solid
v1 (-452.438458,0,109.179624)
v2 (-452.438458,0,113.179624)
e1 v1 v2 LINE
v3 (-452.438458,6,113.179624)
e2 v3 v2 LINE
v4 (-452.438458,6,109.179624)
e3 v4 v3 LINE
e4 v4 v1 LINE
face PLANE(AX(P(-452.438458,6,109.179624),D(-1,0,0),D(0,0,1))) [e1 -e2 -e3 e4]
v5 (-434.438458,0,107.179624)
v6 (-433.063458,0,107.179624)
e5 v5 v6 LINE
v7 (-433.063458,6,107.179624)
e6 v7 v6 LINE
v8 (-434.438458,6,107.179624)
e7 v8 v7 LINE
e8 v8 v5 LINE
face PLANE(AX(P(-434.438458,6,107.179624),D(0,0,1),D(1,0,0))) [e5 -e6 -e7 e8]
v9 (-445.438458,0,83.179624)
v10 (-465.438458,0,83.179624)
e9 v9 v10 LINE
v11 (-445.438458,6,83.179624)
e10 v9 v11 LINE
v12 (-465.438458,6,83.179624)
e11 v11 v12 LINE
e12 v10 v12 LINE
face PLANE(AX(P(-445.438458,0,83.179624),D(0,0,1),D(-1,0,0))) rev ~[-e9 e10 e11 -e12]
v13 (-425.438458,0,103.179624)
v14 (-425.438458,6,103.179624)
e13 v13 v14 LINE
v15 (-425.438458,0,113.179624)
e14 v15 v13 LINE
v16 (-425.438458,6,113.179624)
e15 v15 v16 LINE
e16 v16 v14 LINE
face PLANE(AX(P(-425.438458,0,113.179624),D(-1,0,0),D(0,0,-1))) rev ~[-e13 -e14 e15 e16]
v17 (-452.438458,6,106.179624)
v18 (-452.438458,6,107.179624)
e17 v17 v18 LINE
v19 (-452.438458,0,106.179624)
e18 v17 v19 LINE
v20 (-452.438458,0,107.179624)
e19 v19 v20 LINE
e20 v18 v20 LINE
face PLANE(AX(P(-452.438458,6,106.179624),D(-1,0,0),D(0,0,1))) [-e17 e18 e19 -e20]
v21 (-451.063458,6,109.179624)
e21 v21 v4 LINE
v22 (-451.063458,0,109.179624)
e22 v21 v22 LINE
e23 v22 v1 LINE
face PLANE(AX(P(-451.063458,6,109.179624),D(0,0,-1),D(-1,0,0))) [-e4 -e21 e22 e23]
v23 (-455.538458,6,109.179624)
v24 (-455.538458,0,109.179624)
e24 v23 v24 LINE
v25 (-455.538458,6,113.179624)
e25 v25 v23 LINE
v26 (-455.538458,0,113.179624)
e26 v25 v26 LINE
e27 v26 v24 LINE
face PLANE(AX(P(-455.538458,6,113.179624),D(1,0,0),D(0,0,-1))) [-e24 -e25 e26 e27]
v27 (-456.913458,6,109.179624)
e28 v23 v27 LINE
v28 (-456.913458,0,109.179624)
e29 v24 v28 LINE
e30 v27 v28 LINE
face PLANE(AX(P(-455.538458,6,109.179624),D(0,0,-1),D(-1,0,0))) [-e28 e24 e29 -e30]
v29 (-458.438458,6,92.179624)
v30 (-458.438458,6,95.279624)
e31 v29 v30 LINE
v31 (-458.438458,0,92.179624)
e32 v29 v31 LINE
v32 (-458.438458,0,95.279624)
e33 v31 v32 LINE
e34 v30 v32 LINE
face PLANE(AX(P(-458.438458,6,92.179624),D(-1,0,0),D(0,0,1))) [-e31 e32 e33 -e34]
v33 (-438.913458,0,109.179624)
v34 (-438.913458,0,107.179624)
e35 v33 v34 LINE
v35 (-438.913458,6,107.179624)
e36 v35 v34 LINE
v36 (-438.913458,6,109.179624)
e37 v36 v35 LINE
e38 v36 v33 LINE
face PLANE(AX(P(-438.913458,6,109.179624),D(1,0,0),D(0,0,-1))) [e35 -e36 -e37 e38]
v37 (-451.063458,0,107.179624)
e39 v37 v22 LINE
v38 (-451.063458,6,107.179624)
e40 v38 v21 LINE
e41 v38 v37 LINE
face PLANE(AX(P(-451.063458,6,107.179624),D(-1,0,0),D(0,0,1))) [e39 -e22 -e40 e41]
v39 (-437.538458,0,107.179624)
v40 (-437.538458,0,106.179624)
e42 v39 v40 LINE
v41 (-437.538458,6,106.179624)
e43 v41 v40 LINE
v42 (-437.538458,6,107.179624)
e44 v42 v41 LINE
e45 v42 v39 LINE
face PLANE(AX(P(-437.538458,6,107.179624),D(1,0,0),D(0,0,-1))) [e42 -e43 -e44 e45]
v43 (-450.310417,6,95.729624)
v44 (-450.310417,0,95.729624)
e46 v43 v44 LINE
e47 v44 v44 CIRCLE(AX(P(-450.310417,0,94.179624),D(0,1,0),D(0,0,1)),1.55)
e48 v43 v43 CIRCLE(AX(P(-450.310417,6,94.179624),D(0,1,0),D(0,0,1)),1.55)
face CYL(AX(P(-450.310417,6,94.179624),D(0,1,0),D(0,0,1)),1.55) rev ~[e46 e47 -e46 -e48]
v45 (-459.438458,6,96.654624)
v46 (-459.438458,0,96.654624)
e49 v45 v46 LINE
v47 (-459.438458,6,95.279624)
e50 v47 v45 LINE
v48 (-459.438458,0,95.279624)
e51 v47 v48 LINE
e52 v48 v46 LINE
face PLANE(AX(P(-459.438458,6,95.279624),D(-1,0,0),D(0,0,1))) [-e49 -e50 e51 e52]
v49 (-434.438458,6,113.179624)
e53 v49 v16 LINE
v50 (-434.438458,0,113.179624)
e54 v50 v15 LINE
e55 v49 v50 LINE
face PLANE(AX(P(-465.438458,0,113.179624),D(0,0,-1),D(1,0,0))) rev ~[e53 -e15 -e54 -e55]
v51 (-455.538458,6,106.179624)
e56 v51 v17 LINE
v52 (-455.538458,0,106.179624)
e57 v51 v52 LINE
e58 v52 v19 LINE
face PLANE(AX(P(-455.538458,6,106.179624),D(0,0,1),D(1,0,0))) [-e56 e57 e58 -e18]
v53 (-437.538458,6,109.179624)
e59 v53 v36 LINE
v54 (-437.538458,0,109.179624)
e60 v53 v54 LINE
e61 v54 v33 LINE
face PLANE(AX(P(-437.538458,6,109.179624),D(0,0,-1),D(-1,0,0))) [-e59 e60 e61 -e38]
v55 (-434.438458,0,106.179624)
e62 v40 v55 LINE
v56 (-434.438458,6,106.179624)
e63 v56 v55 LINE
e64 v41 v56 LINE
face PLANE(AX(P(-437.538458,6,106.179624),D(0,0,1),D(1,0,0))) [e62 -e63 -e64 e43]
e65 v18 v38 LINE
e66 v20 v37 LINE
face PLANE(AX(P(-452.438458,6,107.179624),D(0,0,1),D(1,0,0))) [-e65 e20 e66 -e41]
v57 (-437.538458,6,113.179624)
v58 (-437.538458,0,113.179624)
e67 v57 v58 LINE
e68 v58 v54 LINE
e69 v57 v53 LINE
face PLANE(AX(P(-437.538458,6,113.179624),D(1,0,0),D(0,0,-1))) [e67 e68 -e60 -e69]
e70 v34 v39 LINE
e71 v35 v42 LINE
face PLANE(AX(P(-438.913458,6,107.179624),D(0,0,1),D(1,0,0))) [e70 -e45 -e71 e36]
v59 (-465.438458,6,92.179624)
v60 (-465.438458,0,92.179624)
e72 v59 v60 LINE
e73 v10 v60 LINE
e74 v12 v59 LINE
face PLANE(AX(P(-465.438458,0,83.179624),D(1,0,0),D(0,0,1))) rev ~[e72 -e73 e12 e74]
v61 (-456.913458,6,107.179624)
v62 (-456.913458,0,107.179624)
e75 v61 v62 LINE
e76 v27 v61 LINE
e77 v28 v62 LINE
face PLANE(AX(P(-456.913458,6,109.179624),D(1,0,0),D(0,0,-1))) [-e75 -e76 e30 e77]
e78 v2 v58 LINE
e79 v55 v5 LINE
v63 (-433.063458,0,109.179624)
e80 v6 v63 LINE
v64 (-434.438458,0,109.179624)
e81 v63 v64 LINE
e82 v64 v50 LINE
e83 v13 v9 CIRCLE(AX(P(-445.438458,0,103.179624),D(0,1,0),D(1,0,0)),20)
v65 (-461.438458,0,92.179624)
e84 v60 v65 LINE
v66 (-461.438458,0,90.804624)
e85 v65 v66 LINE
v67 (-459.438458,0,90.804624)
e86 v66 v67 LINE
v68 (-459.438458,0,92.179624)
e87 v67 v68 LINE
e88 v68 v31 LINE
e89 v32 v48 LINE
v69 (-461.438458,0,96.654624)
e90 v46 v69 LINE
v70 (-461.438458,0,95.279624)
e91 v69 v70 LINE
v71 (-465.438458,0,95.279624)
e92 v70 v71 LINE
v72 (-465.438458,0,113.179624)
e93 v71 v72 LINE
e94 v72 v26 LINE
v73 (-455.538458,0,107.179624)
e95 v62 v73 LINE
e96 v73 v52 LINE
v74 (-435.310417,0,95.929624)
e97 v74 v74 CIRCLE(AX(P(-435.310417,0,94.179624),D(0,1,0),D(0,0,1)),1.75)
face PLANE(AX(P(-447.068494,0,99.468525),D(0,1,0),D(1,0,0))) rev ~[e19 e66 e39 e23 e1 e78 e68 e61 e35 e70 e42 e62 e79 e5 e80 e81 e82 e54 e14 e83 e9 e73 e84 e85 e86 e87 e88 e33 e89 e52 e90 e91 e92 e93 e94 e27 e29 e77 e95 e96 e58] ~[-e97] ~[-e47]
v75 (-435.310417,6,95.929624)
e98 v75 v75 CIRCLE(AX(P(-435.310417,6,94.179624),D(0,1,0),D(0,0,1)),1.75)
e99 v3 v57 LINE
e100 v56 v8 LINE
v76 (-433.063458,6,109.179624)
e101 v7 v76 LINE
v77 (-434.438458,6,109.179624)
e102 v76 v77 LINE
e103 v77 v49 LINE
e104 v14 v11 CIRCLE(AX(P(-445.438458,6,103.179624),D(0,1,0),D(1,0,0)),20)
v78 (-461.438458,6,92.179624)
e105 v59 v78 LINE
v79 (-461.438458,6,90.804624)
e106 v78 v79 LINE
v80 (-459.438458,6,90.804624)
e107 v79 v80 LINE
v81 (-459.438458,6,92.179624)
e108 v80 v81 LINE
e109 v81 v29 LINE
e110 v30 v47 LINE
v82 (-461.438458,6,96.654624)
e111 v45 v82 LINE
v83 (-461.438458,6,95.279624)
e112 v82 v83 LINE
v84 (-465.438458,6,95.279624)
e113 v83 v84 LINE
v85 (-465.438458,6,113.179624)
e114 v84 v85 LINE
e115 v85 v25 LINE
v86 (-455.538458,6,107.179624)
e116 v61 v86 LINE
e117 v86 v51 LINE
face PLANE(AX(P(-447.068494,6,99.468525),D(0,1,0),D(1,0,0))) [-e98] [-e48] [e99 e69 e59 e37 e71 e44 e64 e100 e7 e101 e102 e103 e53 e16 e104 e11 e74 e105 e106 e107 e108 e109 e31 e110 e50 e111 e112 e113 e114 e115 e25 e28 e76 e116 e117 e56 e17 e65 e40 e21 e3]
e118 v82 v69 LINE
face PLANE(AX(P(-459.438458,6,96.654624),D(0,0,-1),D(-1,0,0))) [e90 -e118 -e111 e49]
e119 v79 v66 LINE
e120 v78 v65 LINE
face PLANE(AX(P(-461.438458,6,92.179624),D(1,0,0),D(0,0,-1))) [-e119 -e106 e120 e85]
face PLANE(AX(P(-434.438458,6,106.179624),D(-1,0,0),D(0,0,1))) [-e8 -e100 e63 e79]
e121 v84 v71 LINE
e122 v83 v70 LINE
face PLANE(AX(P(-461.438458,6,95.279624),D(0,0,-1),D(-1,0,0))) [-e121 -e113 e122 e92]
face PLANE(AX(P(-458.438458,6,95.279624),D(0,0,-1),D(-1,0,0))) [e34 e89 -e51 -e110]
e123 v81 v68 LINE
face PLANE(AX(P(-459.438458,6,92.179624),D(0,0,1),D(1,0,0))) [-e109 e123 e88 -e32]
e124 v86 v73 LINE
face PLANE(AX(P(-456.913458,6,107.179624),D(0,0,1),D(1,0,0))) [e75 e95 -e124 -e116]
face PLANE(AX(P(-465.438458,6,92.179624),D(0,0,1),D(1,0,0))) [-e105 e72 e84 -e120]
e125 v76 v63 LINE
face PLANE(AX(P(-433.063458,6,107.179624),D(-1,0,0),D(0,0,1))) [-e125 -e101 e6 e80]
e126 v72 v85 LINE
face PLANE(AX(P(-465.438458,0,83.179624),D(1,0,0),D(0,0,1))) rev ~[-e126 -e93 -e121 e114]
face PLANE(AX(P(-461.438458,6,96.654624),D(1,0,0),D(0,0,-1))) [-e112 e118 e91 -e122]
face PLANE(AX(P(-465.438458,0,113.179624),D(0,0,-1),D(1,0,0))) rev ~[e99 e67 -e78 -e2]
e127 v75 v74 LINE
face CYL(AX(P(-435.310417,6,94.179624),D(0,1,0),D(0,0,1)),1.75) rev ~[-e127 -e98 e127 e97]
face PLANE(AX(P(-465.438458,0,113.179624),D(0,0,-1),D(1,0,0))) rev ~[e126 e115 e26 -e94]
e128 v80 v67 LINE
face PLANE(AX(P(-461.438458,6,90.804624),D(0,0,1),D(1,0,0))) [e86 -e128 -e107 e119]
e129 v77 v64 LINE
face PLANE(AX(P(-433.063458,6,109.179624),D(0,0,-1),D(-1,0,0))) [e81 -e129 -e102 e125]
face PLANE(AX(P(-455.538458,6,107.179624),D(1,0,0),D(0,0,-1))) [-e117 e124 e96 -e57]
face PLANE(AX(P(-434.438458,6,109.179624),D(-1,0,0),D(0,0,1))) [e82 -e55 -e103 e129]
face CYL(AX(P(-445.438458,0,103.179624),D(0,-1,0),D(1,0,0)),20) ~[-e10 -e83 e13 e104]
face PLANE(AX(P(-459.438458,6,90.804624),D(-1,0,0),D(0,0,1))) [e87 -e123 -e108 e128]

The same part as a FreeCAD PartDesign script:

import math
import FreeCAD as App
import Part
import Sketcher

doc = App.newDocument("Part")
body = doc.addObject("PartDesign::Body", "Body")

# Sketch on XZ plane
sketch1 = doc.addObject("Sketcher::SketchObject", "Sketch")
body.addObject(sketch1)
sketch1.AttachmentSupport = (doc.XZ_Plane, [""])
sketch1.MapMode = "FlatFace"
sketch1.addGeometry([
    Part.LineSegment(App.Vector(-425.438458, 113.179624, 0), App.Vector(-425.438458, 103.179624, 0)),  # 0
    Part.ArcOfCircle(Part.Circle(App.Vector(-445.438458, 103.179624, 0), App.Vector(0, 0, 1), 20), math.radians(-90), math.radians(0)),  # 1
    Part.LineSegment(App.Vector(-445.438458, 83.179624, 0), App.Vector(-465.438458, 83.179624, 0)),  # 2
    Part.LineSegment(App.Vector(-465.438458, 83.179624, 0), App.Vector(-465.438458, 113.179624, 0)),  # 3
    Part.LineSegment(App.Vector(-465.438458, 113.179624, 0), App.Vector(-425.438458, 113.179624, 0)),  # 4
], False)
sketch1.addConstraint([
    Sketcher.Constraint("Tangent", 0, 2, 1, 2),
    Sketcher.Constraint("Tangent", 1, 1, 2, 1),
    Sketcher.Constraint("Coincident", 2, 2, 3, 1),
    Sketcher.Constraint("Coincident", 3, 2, 4, 1),
    Sketcher.Constraint("Coincident", 4, 2, 0, 1),
    Sketcher.Constraint("Vertical", 0),
    Sketcher.Constraint("Horizontal", 2),
    Sketcher.Constraint("Vertical", 3),
    Sketcher.Constraint("Horizontal", 4),
    Sketcher.Constraint("Radius", 1, 20.0),
    Sketcher.Constraint("DistanceX", 2, 2, 2, 1, 20.0),
    Sketcher.Constraint("DistanceY", 0, 2, 0, 1, 10.0),
    Sketcher.Constraint("DistanceX", 1, 3, -1, 1, 445.438458),
    Sketcher.Constraint("DistanceY", -1, 1, 1, 3, 103.179624),
])
pad1 = doc.addObject("PartDesign::Pad", "Pad")
body.addObject(pad1)
pad1.Profile = sketch1
pad1.Length = 6
pad1.Reversed = True

# Sketch on XZ plane
sketch2 = doc.addObject("Sketcher::SketchObject", "Sketch001")
body.addObject(sketch2)
sketch2.AttachmentSupport = (doc.XZ_Plane, [""])
sketch2.MapMode = "FlatFace"
sketch2.AttachmentOffset = App.Placement(App.Vector(0, 0, -6), App.Rotation())
sketch2.addGeometry([
    Part.LineSegment(App.Vector(-437.538458, 113.179624, 0), App.Vector(-434.438458, 113.179624, 0)),  # 0
    Part.LineSegment(App.Vector(-434.438458, 113.179624, 0), App.Vector(-434.438458, 109.179624, 0)),  # 1
    Part.LineSegment(App.Vector(-434.438458, 109.179624, 0), App.Vector(-433.063458, 109.179624, 0)),  # 2
    Part.LineSegment(App.Vector(-433.063458, 109.179624, 0), App.Vector(-433.063458, 107.179624, 0)),  # 3
    Part.LineSegment(App.Vector(-433.063458, 107.179624, 0), App.Vector(-434.438458, 107.179624, 0)),  # 4
    Part.LineSegment(App.Vector(-434.438458, 107.179624, 0), App.Vector(-434.438458, 106.179624, 0)),  # 5
    Part.LineSegment(App.Vector(-434.438458, 106.179624, 0), App.Vector(-437.538458, 106.179624, 0)),  # 6
    Part.LineSegment(App.Vector(-437.538458, 106.179624, 0), App.Vector(-437.538458, 107.179624, 0)),  # 7
    Part.LineSegment(App.Vector(-437.538458, 107.179624, 0), App.Vector(-438.913458, 107.179624, 0)),  # 8
    Part.LineSegment(App.Vector(-438.913458, 107.179624, 0), App.Vector(-438.913458, 109.179624, 0)),  # 9
    Part.LineSegment(App.Vector(-438.913458, 109.179624, 0), App.Vector(-437.538458, 109.179624, 0)),  # 10
    Part.LineSegment(App.Vector(-437.538458, 109.179624, 0), App.Vector(-437.538458, 113.179624, 0)),  # 11
], False)
sketch2.addConstraint([
    Sketcher.Constraint("Coincident", 0, 2, 1, 1),
    Sketcher.Constraint("Coincident", 1, 2, 2, 1),
    Sketcher.Constraint("Coincident", 2, 2, 3, 1),
    Sketcher.Constraint("Coincident", 3, 2, 4, 1),
    Sketcher.Constraint("Coincident", 4, 2, 5, 1),
    Sketcher.Constraint("Coincident", 5, 2, 6, 1),
    Sketcher.Constraint("Coincident", 6, 2, 7, 1),
    Sketcher.Constraint("Coincident", 7, 2, 8, 1),
    Sketcher.Constraint("Coincident", 8, 2, 9, 1),
    Sketcher.Constraint("Coincident", 9, 2, 10, 1),
    Sketcher.Constraint("Coincident", 10, 2, 11, 1),
    Sketcher.Constraint("Coincident", 11, 2, 0, 1),
    Sketcher.Constraint("Horizontal", 0),
    Sketcher.Constraint("Vertical", 1),
    Sketcher.Constraint("Horizontal", 2),
    Sketcher.Constraint("Vertical", 3),
    Sketcher.Constraint("Horizontal", 4),
    Sketcher.Constraint("Vertical", 5),
    Sketcher.Constraint("Horizontal", 6),
    Sketcher.Constraint("Vertical", 7),
    Sketcher.Constraint("Horizontal", 8),
    Sketcher.Constraint("Vertical", 9),
    Sketcher.Constraint("Horizontal", 10),
    Sketcher.Constraint("Vertical", 11),
    Sketcher.Constraint("Horizontal", 4, 2, 7, 2),
    Sketcher.Constraint("Horizontal", 2, 2, 9, 2),
    Sketcher.Constraint("Vertical", 1, 2, 4, 2),
    Sketcher.Constraint("Vertical", 7, 2, 10, 2),
    Sketcher.Constraint("Equal", 4, 8),
    Sketcher.Constraint("DistanceY", 1, 2, 1, 1, 4.0),
    Sketcher.Constraint("DistanceY", 3, 2, 3, 1, 2.0),
    Sketcher.Constraint("DistanceY", 5, 2, 5, 1, 1.0),
    Sketcher.Constraint("DistanceX", 0, 1, 0, 2, 3.1),
    Sketcher.Constraint("DistanceX", 2, 1, 2, 2, 1.375),
    Sketcher.Constraint("DistanceX", 0, 2, -1, 1, 434.438458),
    Sketcher.Constraint("DistanceY", -1, 1, 0, 2, 113.179624),
])
pocket1 = doc.addObject("PartDesign::Pocket", "Pocket")
body.addObject(pocket1)
pocket1.Profile = sketch2
pocket1.Length = 6
pocket1.Reversed = True
doc.recompute()

linearpattern = doc.addObject("PartDesign::LinearPattern", "LinearPattern")
body.addObject(linearpattern)
linearpattern.Originals = [pocket1]
linearpattern.Direction = (doc.X_Axis, [""])
linearpattern.Mode = "offset"
linearpattern.Offset = 18
linearpattern.Occurrences = 2
linearpattern.Reversed = True
body.Tip = linearpattern

# Sketch on XZ plane
sketch3 = doc.addObject("Sketcher::SketchObject", "Sketch002")
body.addObject(sketch3)
sketch3.AttachmentSupport = (doc.XZ_Plane, [""])
sketch3.MapMode = "FlatFace"
sketch3.AttachmentOffset = App.Placement(App.Vector(0, 0, -6), App.Rotation())
sketch3.addGeometry([
    Part.LineSegment(App.Vector(-465.438458, 92.179624, 0), App.Vector(-465.438458, 95.279624, 0)),  # 0
    Part.LineSegment(App.Vector(-465.438458, 95.279624, 0), App.Vector(-461.438458, 95.279624, 0)),  # 1
    Part.LineSegment(App.Vector(-461.438458, 95.279624, 0), App.Vector(-461.438458, 96.654624, 0)),  # 2
    Part.LineSegment(App.Vector(-461.438458, 96.654624, 0), App.Vector(-459.438458, 96.654624, 0)),  # 3
    Part.LineSegment(App.Vector(-459.438458, 96.654624, 0), App.Vector(-459.438458, 95.279624, 0)),  # 4
    Part.LineSegment(App.Vector(-459.438458, 95.279624, 0), App.Vector(-458.438458, 95.279624, 0)),  # 5
    Part.LineSegment(App.Vector(-458.438458, 95.279624, 0), App.Vector(-458.438458, 92.179624, 0)),  # 6
    Part.LineSegment(App.Vector(-458.438458, 92.179624, 0), App.Vector(-459.438458, 92.179624, 0)),  # 7
    Part.LineSegment(App.Vector(-459.438458, 92.179624, 0), App.Vector(-459.438458, 90.804624, 0)),  # 8
    Part.LineSegment(App.Vector(-459.438458, 90.804624, 0), App.Vector(-461.438458, 90.804624, 0)),  # 9
    Part.LineSegment(App.Vector(-461.438458, 90.804624, 0), App.Vector(-461.438458, 92.179624, 0)),  # 10
    Part.LineSegment(App.Vector(-461.438458, 92.179624, 0), App.Vector(-465.438458, 92.179624, 0)),  # 11
], False)
sketch3.addConstraint([
    Sketcher.Constraint("Coincident", 0, 2, 1, 1),
    Sketcher.Constraint("Coincident", 1, 2, 2, 1),
    Sketcher.Constraint("Coincident", 2, 2, 3, 1),
    Sketcher.Constraint("Coincident", 3, 2, 4, 1),
    Sketcher.Constraint("Coincident", 4, 2, 5, 1),
    Sketcher.Constraint("Coincident", 5, 2, 6, 1),
    Sketcher.Constraint("Coincident", 6, 2, 7, 1),
    Sketcher.Constraint("Coincident", 7, 2, 8, 1),
    Sketcher.Constraint("Coincident", 8, 2, 9, 1),
    Sketcher.Constraint("Coincident", 9, 2, 10, 1),
    Sketcher.Constraint("Coincident", 10, 2, 11, 1),
    Sketcher.Constraint("Coincident", 11, 2, 0, 1),
    Sketcher.Constraint("Vertical", 0),
    Sketcher.Constraint("Horizontal", 1),
    Sketcher.Constraint("Vertical", 2),
    Sketcher.Constraint("Horizontal", 3),
    Sketcher.Constraint("Vertical", 4),
    Sketcher.Constraint("Horizontal", 5),
    Sketcher.Constraint("Vertical", 6),
    Sketcher.Constraint("Horizontal", 7),
    Sketcher.Constraint("Vertical", 8),
    Sketcher.Constraint("Horizontal", 9),
    Sketcher.Constraint("Vertical", 10),
    Sketcher.Constraint("Horizontal", 11),
    Sketcher.Constraint("Horizontal", 1, 2, 4, 2),
    Sketcher.Constraint("Horizontal", 7, 2, 10, 2),
    Sketcher.Constraint("Vertical", 4, 2, 7, 2),
    Sketcher.Constraint("Vertical", 2, 2, 9, 2),
    Sketcher.Constraint("Equal", 4, 8),
    Sketcher.Constraint("DistanceX", 1, 1, 1, 2, 4.0),
    Sketcher.Constraint("DistanceX", 3, 1, 3, 2, 2.0),
    Sketcher.Constraint("DistanceX", 5, 1, 5, 2, 1.0),
    Sketcher.Constraint("DistanceY", 0, 1, 0, 2, 3.1),
    Sketcher.Constraint("DistanceY", 2, 1, 2, 2, 1.375),
    Sketcher.Constraint("DistanceX", 0, 2, -1, 1, 465.438458),
    Sketcher.Constraint("DistanceY", -1, 1, 0, 2, 95.279624),
])
pocket2 = doc.addObject("PartDesign::Pocket", "Pocket001")
body.addObject(pocket2)
pocket2.Profile = sketch3
pocket2.Length = 6
pocket2.Reversed = True

# Sketch on XZ plane
sketch4 = doc.addObject("Sketcher::SketchObject", "Sketch003")
body.addObject(sketch4)
sketch4.AttachmentSupport = (doc.XZ_Plane, [""])
sketch4.MapMode = "FlatFace"
sketch4.AttachmentOffset = App.Placement(App.Vector(0, 0, -6), App.Rotation())
sketch4.addGeometry([
    Part.Circle(App.Vector(-435.310417, 94.179624, 0), App.Vector(0, 0, 1), 1.75),
    Part.Circle(App.Vector(-450.310417, 94.179624, 0), App.Vector(0, 0, 1), 1.55),
], False)
sketch4.addConstraint([
    Sketcher.Constraint("Horizontal", 0, 3, 1, 3),
    Sketcher.Constraint("Diameter", 0, 3.5),
    Sketcher.Constraint("Diameter", 1, 3.1),
    Sketcher.Constraint("DistanceX", 1, 3, 0, 3, 15.0),
    Sketcher.Constraint("DistanceX", 0, 3, -1, 1, 435.310417),
    Sketcher.Constraint("DistanceY", -1, 1, 0, 3, 94.179624),
])
pocket3 = doc.addObject("PartDesign::Pocket", "Pocket002")
body.addObject(pocket3)
pocket3.Profile = sketch4
pocket3.Length = 6
pocket3.Reversed = True

doc.recompute()
